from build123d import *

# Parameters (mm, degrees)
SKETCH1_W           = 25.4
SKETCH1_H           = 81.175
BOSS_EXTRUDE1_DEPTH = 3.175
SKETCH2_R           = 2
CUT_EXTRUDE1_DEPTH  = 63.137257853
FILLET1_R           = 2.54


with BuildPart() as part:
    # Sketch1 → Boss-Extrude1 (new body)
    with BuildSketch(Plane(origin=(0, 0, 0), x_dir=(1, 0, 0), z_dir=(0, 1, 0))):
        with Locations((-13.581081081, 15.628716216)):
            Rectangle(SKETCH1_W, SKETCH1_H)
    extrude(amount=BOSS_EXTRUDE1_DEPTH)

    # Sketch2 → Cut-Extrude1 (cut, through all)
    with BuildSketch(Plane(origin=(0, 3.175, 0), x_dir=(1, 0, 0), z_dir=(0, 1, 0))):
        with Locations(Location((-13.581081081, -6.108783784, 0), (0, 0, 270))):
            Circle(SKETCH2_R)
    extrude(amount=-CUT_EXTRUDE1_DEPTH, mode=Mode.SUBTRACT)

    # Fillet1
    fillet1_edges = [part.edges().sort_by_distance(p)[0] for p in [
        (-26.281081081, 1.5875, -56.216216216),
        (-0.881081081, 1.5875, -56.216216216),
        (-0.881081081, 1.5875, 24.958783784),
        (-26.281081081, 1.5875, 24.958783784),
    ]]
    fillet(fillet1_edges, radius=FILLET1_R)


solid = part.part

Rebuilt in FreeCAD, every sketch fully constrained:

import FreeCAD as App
import Part
import Sketcher
from FreeCAD import Vector
Q = App.Units.Quantity


def edges_at(feature, points):
    """Names of the edges that pass closest to the given points."""
    edges = feature.Shape.Edges
    near = lambda p: min(range(len(edges)), key=lambda i: edges[i].distToShape(Part.Vertex(*p))[0])
    return sorted({f"Edge{near(p) + 1}" for p in points})

doc = App.newDocument("Part")
params = doc.addObject("Spreadsheet::Sheet", "Params")
for row, (alias, value) in enumerate([
    ("sketch1_width", "1 in"),
    ("pad1_length", "0.125 in"),
    ("fillet_radius", "0.1 in"),
], start=1):
    params.set(f"A{row}", alias)
    params.set(f"B{row}", "=" + value)
    params.setAlias(f"B{row}", alias)

body = doc.addObject("PartDesign::Body", "Body")

# Sketch on XZ plane
sketch1 = doc.addObject("Sketcher::SketchObject", "Sketch")
body.addObject(sketch1)
sketch1.AttachmentSupport = (doc.XZ_Plane, [""])
sketch1.MapMode = "FlatFace"
sketch1.addGeometry(Part.LineSegment(Vector(-26, -56, 0), Vector(-26, 25, 0)), False)
sketch1.addGeometry(Part.LineSegment(Vector(-26, 25, 0), Vector(-1, 25, 0)), False)
sketch1.addGeometry(Part.LineSegment(Vector(-1, 25, 0), Vector(-1, -56, 0)), False)
sketch1.addGeometry(Part.LineSegment(Vector(-1, -56, 0), Vector(-26, -56, 0)), False)
sketch1.addConstraint(Sketcher.Constraint("Coincident", 0, 2, 1, 1))
sketch1.addConstraint(Sketcher.Constraint("Coincident", 1, 2, 2, 1))
sketch1.addConstraint(Sketcher.Constraint("Coincident", 2, 2, 3, 1))
sketch1.addConstraint(Sketcher.Constraint("Coincident", 3, 2, 0, 1))
sketch1.addConstraint(Sketcher.Constraint("Vertical", 0))
sketch1.addConstraint(Sketcher.Constraint("Horizontal", 1))
sketch1.addConstraint(Sketcher.Constraint("Vertical", 2))
sketch1.addConstraint(Sketcher.Constraint("Horizontal", 3))
sketch1.addConstraint(Sketcher.Constraint("DistanceX", 1, 1, 1, 2, Q("1 in")))
sketch1.addConstraint(Sketcher.Constraint("DistanceY", 0, 1, 0, 2, 81.175))
sketch1.addConstraint(Sketcher.Constraint("DistanceX", 0, 2, -1, 1, 26.281081))
sketch1.addConstraint(Sketcher.Constraint("DistanceY", -1, 1, 0, 2, 24.958784))
sketch1.setExpression("Constraints[8]", "Params.sketch1_width")
pad1 = doc.addObject("PartDesign::Pad", "Pad")
body.addObject(pad1)
pad1.Profile = sketch1
pad1.setExpression("Length", "Params.pad1_length")
pad1.Reversed = True

# Sketch on XZ plane
sketch2 = doc.addObject("Sketcher::SketchObject", "Sketch001")
body.addObject(sketch2)
sketch2.AttachmentSupport = (doc.XZ_Plane, [""])
sketch2.MapMode = "FlatFace"
sketch2.AttachmentOffset = App.Placement(Vector(0, 0, -0.125 * 25.4), App.Rotation())
sketch2.addGeometry(Part.Circle(Vector(-13.6, 6.1, 0), Vector(0, 0, 1), 2), False)
sketch2.addConstraint(Sketcher.Constraint("Diameter", 0, 4.0))
sketch2.addConstraint(Sketcher.Constraint("DistanceX", 0, 3, -1, 1, 13.581081))
sketch2.addConstraint(Sketcher.Constraint("DistanceY", -1, 1, 0, 3, 6.108784))
pocket1 = doc.addObject("PartDesign::Pocket", "Pocket")
body.addObject(pocket1)
pocket1.Profile = sketch2
pocket1.Type = "ThroughAll"
pocket1.Reversed = True
doc.recompute()

fillet = doc.addObject("PartDesign::Fillet", "Fillet")
body.addObject(fillet)
fillet.Base = (pocket1, edges_at(pocket1, [
    (-26.281, 1.587, -56.216),
    (-0.881, 1.587, -56.216),
    (-0.881, 1.587, 24.959),
    (-26.281, 1.587, 24.959),
]))
fillet.setExpression("Radius", "Params.fillet_radius")

doc.recompute()
